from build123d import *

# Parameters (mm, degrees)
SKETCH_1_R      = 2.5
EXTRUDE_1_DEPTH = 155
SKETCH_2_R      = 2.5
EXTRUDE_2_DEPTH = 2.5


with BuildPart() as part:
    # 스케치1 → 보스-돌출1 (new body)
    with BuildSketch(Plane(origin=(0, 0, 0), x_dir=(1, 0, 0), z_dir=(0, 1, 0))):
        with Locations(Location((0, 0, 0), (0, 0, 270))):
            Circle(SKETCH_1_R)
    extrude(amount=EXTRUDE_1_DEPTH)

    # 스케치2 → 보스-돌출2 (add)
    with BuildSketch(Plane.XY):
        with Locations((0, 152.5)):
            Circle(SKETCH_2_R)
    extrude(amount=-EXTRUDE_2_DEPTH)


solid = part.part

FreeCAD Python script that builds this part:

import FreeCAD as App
import Part
import Sketcher
Q = App.Units.Quantity

doc = App.newDocument("Part")
body = doc.addObject("PartDesign::Body", "Body")

sketch1 = body.newObject("Sketcher::SketchObject", "Sketch")
sketch1.AttachmentSupport = (doc.getObject("XZ_Plane"), [""])
sketch1.MapMode = "FlatFace"
sketch1.addGeometry(Part.Circle(App.Vector(0, 0, 0), App.Vector(0, 0, 1), 2.5), False)
sketch1.addConstraint(Sketcher.Constraint("Coincident", 0, 3, -1, 1))
sketch1.addConstraint(Sketcher.Constraint("Diameter", 0, Q("5 mm")))
pad1 = body.newObject("PartDesign::Pad", "Pad")
pad1.Profile = sketch1
pad1.Length = 155
pad1.Reversed = True

sketch2 = body.newObject("Sketcher::SketchObject", "Sketch001")
sketch2.AttachmentSupport = (doc.getObject("XY_Plane"), [""])
sketch2.MapMode = "FlatFace"
sketch2.addGeometry(Part.Circle(App.Vector(0, 152.5, 0), App.Vector(0, 0, 1), 2.5), False)
sketch2.addConstraint(Sketcher.Constraint("PointOnObject", 0, 3, -2))
sketch2.addConstraint(Sketcher.Constraint("Diameter", 0, Q("5 mm")))
sketch2.addConstraint(Sketcher.Constraint("DistanceY", -1, 1, 0, 3, Q("152.5 mm")))
pad2 = body.newObject("PartDesign::Pad", "Pad001")
pad2.Profile = sketch2
pad2.Length = 2.5
pad2.Reversed = True

doc.recompute()
